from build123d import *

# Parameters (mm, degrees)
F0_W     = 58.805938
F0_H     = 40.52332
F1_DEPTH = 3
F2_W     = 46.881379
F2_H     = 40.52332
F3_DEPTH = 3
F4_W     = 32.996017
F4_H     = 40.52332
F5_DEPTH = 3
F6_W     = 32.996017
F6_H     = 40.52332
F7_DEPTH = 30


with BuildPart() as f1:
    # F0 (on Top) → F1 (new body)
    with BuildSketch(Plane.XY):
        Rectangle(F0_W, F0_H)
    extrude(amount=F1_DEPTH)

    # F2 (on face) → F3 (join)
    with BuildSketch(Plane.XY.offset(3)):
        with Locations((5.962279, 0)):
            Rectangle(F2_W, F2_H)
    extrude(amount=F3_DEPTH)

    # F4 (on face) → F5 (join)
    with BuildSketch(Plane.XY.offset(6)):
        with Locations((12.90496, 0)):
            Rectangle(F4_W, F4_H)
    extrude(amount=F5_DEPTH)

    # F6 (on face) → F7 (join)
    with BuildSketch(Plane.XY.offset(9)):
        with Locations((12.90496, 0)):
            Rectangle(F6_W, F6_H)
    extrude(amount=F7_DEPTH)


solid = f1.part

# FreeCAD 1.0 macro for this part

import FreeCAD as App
import Part
import Sketcher

V = App.Vector

doc = App.newDocument("Part")
body = doc.addObject("PartDesign::Body", "Body")

# Sketch on XY plane
sketch1 = body.newObject("Sketcher::SketchObject", "Sketch")
sketch1.AttachmentSupport = (doc.getObject("XY_Plane"), [""])
sketch1.MapMode = "FlatFace"
sketch1.addGeometry([
    Part.LineSegment(V(-29, 20, 0), V(-29, -20, 0)),
    Part.LineSegment(V(-29, -20, 0), V(29, -20, 0)),
    Part.LineSegment(V(29, -20, 0), V(29, 20, 0)),
    Part.LineSegment(V(29, 20, 0), V(-29, 20, 0)),
], False)
sketch1.addConstraint([
    Sketcher.Constraint("Coincident", 0, 2, 1, 1),
    Sketcher.Constraint("Coincident", 1, 2, 2, 1),
    Sketcher.Constraint("Coincident", 2, 2, 3, 1),
    Sketcher.Constraint("Coincident", 3, 2, 0, 1),
    Sketcher.Constraint("Vertical", 0),
    Sketcher.Constraint("Horizontal", 1),
    Sketcher.Constraint("Vertical", 2),
    Sketcher.Constraint("Horizontal", 3),
    Sketcher.Constraint("Symmetric", 0, 2, 2, 2, -1, 1),
    Sketcher.Constraint("DistanceY", 0, 2, 0, 1, 40.52332),
    Sketcher.Constraint("DistanceX", 1, 1, 1, 2, 58.805938),
])
pad1 = body.newObject("PartDesign::Pad", "Pad")
pad1.Profile = sketch1
pad1.Length = 3

# Sketch on XY plane
sketch2 = body.newObject("Sketcher::SketchObject", "Sketch001")
sketch2.AttachmentSupport = (doc.getObject("XY_Plane"), [""])
sketch2.MapMode = "FlatFace"
sketch2.AttachmentOffset = App.Placement(V(0, 0, 3), App.Rotation())
sketch2.addGeometry([
    Part.LineSegment(V(-17, 20, 0), V(-17, -20, 0)),
    Part.LineSegment(V(-17, -20, 0), V(29, -20, 0)),
    Part.LineSegment(V(29, -20, 0), V(29, 20, 0)),
    Part.LineSegment(V(29, 20, 0), V(-17, 20, 0)),
], False)
sketch2.addConstraint([
    Sketcher.Constraint("Coincident", 0, 2, 1, 1),
    Sketcher.Constraint("Coincident", 1, 2, 2, 1),
    Sketcher.Constraint("Coincident", 2, 2, 3, 1),
    Sketcher.Constraint("Coincident", 3, 2, 0, 1),
    Sketcher.Constraint("Vertical", 0),
    Sketcher.Constraint("Horizontal", 1),
    Sketcher.Constraint("Vertical", 2),
    Sketcher.Constraint("Horizontal", 3),
    Sketcher.Constraint("DistanceX", 1, 1, 1, 2, 46.881379),
    Sketcher.Constraint("DistanceY", 0, 2, 0, 1, 40.52332),
    Sketcher.Constraint("DistanceX", 0, 2, -1, 1, 17.47841),
    Sketcher.Constraint("DistanceY", 0, 2, -1, 1, 20.26166),
])
pad2 = body.newObject("PartDesign::Pad", "Pad001")
pad2.Profile = sketch2
pad2.Length = 3

# Sketch on XY plane
sketch3 = body.newObject("Sketcher::SketchObject", "Sketch002")
sketch3.AttachmentSupport = (doc.getObject("XY_Plane"), [""])
sketch3.MapMode = "FlatFace"
sketch3.AttachmentOffset = App.Placement(V(0, 0, 6), App.Rotation())
sketch3.addGeometry([
    Part.LineSegment(V(-4, 20, 0), V(-4, -20, 0)),
    Part.LineSegment(V(-4, -20, 0), V(29, -20, 0)),
    Part.LineSegment(V(29, -20, 0), V(29, 20, 0)),
    Part.LineSegment(V(29, 20, 0), V(-4, 20, 0)),
], False)
sketch3.addConstraint([
    Sketcher.Constraint("Coincident", 0, 2, 1, 1),
    Sketcher.Constraint("Coincident", 1, 2, 2, 1),
    Sketcher.Constraint("Coincident", 2, 2, 3, 1),
    Sketcher.Constraint("Coincident", 3, 2, 0, 1),
    Sketcher.Constraint("Vertical", 0),
    Sketcher.Constraint("Horizontal", 1),
    Sketcher.Constraint("Vertical", 2),
    Sketcher.Constraint("Horizontal", 3),
    Sketcher.Constraint("DistanceY", 0, 2, 0, 1, 40.52332),
    Sketcher.Constraint("DistanceX", 1, 1, 1, 2, 32.996017),
    Sketcher.Constraint("DistanceX", 0, 2, -1, 1, 3.593049),
    Sketcher.Constraint("DistanceY", 0, 2, -1, 1, 20.26166),
])
pad3 = body.newObject("PartDesign::Pad", "Pad002")
pad3.Profile = sketch3
pad3.Length = 3

# Sketch on XY plane
sketch4 = body.newObject("Sketcher::SketchObject", "Sketch003")
sketch4.AttachmentSupport = (doc.getObject("XY_Plane"), [""])
sketch4.MapMode = "FlatFace"
sketch4.AttachmentOffset = App.Placement(V(0, 0, 9), App.Rotation())
sketch4.addGeometry([
    Part.LineSegment(V(-4, 20, 0), V(-4, -20, 0)),
    Part.LineSegment(V(-4, -20, 0), V(29, -20, 0)),
    Part.LineSegment(V(29, -20, 0), V(29, 20, 0)),
    Part.LineSegment(V(29, 20, 0), V(-4, 20, 0)),
], False)
sketch4.addConstraint([
    Sketcher.Constraint("Coincident", 0, 2, 1, 1),
    Sketcher.Constraint("Coincident", 1, 2, 2, 1),
    Sketcher.Constraint("Coincident", 2, 2, 3, 1),
    Sketcher.Constraint("Coincident", 3, 2, 0, 1),
    Sketcher.Constraint("Vertical", 0),
    Sketcher.Constraint("Horizontal", 1),
    Sketcher.Constraint("Vertical", 2),
    Sketcher.Constraint("Horizontal", 3),
    Sketcher.Constraint("DistanceY", 0, 2, 0, 1, 40.52332),
    Sketcher.Constraint("DistanceX", 1, 1, 1, 2, 32.996017),
    Sketcher.Constraint("DistanceX", 0, 2, -1, 1, 3.593049),
    Sketcher.Constraint("DistanceY", 0, 2, -1, 1, 20.26166),
])
pad4 = body.newObject("PartDesign::Pad", "Pad003")
pad4.Profile = sketch4
pad4.Length = 30

doc.recompute()
